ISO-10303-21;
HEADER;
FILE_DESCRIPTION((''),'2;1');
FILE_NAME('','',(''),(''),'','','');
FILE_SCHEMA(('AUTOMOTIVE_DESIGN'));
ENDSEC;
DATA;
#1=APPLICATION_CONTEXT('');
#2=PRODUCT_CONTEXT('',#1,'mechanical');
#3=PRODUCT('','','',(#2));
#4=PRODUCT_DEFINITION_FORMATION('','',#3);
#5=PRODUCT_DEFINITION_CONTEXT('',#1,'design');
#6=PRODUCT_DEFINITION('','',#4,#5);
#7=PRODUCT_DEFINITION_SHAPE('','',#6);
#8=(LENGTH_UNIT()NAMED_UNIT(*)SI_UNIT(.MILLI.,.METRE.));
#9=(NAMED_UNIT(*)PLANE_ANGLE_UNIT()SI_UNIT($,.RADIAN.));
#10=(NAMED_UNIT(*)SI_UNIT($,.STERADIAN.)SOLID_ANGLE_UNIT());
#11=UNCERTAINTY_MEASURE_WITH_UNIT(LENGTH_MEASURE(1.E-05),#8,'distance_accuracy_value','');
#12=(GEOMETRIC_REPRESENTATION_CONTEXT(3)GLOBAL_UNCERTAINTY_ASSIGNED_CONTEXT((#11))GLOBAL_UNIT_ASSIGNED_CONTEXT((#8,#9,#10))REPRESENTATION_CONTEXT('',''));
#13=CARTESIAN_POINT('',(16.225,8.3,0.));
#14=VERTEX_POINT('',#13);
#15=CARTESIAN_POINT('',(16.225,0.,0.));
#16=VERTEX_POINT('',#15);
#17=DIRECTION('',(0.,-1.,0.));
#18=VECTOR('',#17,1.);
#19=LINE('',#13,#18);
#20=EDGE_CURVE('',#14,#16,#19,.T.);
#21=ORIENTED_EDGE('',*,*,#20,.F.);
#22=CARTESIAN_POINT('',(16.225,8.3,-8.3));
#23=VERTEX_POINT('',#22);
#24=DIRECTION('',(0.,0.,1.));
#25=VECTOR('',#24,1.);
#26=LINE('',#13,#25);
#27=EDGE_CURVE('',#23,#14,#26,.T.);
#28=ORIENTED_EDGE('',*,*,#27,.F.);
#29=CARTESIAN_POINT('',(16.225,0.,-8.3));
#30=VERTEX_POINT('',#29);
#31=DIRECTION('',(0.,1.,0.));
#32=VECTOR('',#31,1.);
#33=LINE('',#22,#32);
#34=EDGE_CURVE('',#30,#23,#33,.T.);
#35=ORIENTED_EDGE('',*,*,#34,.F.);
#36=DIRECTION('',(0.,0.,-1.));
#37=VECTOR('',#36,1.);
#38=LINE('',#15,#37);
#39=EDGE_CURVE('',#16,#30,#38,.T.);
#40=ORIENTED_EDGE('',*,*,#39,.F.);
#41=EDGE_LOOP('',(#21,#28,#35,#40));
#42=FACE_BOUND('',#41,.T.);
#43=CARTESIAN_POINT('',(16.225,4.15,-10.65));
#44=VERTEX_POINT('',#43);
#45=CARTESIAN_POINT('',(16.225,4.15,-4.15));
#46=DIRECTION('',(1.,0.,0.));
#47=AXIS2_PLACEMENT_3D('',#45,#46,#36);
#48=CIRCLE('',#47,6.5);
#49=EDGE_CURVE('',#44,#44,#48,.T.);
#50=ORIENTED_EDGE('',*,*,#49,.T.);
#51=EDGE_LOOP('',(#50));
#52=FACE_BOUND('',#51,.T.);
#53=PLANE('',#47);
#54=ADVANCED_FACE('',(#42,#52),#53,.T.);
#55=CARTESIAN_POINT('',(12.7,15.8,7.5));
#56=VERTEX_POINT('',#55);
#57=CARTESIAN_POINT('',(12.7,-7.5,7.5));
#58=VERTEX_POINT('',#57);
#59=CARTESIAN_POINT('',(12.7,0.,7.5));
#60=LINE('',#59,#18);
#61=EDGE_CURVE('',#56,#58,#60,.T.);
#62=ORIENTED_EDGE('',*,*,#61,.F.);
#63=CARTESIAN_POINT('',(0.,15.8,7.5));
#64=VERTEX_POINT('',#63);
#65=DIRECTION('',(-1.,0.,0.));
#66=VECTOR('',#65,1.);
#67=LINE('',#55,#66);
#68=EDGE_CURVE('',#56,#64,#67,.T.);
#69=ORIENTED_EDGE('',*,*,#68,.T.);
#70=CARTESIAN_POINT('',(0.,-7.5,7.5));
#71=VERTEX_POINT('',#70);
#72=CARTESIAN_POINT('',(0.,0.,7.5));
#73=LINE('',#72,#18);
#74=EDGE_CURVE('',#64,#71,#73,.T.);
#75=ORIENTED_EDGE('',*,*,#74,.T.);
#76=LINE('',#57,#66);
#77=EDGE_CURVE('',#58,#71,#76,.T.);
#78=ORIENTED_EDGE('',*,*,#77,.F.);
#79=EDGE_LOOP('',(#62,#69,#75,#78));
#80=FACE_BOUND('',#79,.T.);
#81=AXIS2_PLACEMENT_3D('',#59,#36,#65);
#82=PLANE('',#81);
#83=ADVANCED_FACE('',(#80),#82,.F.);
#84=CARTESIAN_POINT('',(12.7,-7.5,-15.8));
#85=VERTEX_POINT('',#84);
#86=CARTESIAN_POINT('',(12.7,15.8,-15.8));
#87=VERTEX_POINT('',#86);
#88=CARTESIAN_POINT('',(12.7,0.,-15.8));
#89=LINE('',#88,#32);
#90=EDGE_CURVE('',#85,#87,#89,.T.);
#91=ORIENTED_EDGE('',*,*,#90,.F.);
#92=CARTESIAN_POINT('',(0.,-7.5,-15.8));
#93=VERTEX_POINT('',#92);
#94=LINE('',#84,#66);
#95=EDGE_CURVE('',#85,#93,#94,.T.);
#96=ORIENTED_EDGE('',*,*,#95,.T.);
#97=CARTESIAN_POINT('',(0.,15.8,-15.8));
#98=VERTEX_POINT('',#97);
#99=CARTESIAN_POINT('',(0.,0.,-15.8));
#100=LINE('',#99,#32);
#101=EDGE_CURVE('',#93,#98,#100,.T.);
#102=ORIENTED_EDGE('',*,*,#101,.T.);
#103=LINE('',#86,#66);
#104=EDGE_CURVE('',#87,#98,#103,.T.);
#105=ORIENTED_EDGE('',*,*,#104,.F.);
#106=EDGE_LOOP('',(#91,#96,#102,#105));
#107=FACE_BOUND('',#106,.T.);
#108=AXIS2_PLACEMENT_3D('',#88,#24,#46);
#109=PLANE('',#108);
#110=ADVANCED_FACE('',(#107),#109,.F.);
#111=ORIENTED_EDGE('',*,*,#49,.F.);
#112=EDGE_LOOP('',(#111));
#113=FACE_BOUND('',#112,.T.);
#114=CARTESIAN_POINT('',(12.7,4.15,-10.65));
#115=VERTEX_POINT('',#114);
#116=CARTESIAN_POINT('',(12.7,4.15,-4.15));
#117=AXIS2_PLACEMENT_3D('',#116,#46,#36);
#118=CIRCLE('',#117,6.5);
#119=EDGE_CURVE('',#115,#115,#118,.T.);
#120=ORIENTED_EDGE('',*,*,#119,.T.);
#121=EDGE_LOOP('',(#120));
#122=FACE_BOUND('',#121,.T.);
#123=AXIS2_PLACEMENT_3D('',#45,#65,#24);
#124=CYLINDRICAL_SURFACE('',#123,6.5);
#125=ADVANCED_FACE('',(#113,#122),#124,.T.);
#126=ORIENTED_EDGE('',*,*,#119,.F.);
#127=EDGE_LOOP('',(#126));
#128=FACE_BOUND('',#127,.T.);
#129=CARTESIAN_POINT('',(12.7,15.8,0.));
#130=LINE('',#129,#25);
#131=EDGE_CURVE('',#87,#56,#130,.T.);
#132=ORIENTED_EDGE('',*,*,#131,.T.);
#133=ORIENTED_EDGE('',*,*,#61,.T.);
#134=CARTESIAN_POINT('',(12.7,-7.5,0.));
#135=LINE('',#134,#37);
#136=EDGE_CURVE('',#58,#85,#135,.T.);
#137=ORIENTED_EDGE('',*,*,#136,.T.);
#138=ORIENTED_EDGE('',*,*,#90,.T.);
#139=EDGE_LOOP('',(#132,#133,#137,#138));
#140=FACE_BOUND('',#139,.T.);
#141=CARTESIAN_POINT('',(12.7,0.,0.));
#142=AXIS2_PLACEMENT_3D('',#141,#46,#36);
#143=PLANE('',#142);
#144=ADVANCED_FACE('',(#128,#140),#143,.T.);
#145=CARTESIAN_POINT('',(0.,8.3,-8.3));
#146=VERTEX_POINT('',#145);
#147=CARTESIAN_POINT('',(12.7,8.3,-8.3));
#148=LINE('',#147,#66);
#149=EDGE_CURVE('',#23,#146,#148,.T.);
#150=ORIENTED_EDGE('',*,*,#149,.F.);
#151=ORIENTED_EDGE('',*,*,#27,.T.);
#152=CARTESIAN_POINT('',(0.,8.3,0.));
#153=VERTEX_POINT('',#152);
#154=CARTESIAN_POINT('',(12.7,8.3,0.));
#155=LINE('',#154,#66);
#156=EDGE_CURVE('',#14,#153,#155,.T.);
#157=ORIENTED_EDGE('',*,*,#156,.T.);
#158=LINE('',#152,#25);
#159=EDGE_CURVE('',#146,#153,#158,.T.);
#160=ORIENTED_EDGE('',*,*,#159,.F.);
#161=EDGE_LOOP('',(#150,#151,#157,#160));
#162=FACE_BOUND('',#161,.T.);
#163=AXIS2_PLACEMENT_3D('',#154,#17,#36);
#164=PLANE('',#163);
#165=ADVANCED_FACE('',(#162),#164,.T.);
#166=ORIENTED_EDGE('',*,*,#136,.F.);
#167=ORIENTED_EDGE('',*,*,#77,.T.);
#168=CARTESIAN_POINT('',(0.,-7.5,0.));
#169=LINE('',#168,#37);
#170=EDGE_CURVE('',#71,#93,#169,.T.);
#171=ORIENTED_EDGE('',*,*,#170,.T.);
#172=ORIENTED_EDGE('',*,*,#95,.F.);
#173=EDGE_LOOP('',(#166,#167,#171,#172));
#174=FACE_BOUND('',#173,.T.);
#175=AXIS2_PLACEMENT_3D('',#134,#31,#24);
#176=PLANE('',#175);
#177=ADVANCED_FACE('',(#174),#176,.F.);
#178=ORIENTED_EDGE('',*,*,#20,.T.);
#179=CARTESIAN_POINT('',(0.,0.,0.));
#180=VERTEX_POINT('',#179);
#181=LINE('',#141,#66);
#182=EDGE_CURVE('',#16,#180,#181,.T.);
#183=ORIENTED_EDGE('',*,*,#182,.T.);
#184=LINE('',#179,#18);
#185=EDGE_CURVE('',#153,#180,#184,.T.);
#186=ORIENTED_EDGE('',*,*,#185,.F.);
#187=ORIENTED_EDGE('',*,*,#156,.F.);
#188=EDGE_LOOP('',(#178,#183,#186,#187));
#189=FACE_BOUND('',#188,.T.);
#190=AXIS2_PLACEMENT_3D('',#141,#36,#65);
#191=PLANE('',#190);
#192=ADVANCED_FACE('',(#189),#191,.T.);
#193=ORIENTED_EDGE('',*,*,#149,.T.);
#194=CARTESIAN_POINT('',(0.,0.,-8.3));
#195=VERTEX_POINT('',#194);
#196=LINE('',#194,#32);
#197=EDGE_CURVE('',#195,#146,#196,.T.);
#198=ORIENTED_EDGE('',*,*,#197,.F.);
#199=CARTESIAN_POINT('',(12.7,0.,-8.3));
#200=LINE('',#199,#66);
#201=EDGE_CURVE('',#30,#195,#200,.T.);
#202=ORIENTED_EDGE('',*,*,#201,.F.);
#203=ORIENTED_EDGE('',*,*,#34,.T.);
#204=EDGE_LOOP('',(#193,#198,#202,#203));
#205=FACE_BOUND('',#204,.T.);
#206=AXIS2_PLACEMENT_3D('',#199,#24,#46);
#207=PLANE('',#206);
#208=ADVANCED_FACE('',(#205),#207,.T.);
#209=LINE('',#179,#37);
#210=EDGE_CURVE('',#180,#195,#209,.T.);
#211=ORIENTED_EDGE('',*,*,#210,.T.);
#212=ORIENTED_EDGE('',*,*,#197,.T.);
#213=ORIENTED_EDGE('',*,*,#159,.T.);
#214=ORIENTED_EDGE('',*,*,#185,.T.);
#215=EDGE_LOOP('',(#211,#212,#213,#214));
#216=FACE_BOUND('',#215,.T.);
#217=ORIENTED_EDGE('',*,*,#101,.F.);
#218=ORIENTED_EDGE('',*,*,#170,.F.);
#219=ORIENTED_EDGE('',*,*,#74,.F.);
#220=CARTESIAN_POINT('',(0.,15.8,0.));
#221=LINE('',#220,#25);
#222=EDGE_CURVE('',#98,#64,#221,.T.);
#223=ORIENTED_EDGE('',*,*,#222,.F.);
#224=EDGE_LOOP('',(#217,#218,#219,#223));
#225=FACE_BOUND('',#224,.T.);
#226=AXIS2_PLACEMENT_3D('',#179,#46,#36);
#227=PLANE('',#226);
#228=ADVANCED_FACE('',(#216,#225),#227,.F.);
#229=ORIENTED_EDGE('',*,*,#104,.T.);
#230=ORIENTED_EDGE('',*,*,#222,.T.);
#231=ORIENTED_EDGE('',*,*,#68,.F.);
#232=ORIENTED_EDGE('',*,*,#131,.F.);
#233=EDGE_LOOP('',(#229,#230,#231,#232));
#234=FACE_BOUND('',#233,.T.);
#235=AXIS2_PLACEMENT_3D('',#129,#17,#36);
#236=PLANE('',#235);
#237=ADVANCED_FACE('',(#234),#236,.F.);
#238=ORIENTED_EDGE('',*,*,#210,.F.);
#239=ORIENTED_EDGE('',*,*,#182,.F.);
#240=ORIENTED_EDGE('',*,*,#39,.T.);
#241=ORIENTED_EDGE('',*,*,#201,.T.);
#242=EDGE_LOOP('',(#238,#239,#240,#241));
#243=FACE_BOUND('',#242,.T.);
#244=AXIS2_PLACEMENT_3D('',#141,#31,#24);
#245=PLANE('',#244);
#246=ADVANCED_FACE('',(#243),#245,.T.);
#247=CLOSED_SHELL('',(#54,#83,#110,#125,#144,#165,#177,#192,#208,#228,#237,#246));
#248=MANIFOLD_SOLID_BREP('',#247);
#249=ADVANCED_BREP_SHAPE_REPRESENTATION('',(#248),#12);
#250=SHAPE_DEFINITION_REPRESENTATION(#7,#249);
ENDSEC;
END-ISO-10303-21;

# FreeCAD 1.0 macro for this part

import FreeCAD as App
import Part
import Sketcher
Q = App.Units.Quantity


def add_polygon(sketch, points):
    """Adds a closed chain of lines whose ends are joined by coincident constraints."""
    first, n = sketch.GeometryCount, len(points)
    for a, b in zip(points, points[1:] + points[:1]):
        sketch.addGeometry(Part.LineSegment(App.Vector(*a, 0), App.Vector(*b, 0)), False)
    for i in range(n):
        sketch.addConstraint(Sketcher.Constraint("Coincident", first + i, 2, first + (i + 1) % n, 1))

doc = App.newDocument("Part")
params = doc.addObject("Spreadsheet::Sheet", "Params")
for row, (alias, value) in enumerate([
    ("sketch1_width", "23.3 mm"),
    ("sketch1_width2", "8.3 mm"),
    ("pad1_length", "12.7 mm"),
    ("sketch2_diameter", "13 mm"),
    ("sketch2_width", "8.3 mm"),
    ("pad2_length", "3.525 mm"),
], start=1):
    params.set(f"A{row}", alias)
    params.set(f"B{row}", "=" + value)
    params.setAlias(f"B{row}", alias)

body = doc.addObject("PartDesign::Body", "Body")

# Sketch on YZ plane
sketch1 = body.newObject("Sketcher::SketchObject", "Sketch")
sketch1.AttachmentSupport = (doc.getObject("YZ_Plane"), [""])
sketch1.MapMode = "FlatFace"
add_polygon(sketch1, [(15.8, 7.5), (-7.5, 7.5), (-7.5, -15.8), (15.8, -15.8)])  # lines 0-3
add_polygon(sketch1, [(0, -8.3), (0, 0), (8.3, 0), (8.3, -8.3)])  # lines 4-7
sketch1.addConstraint([
    Sketcher.Constraint("Horizontal", 0),
    Sketcher.Constraint("Vertical", 1),
    Sketcher.Constraint("Horizontal", 2),
    Sketcher.Constraint("Vertical", 3),
    Sketcher.Constraint("Vertical", 4),
    Sketcher.Constraint("Horizontal", 5),
    Sketcher.Constraint("Vertical", 6),
    Sketcher.Constraint("Horizontal", 7),
    Sketcher.Constraint("Coincident", 4, 2, -1, 1),
    Sketcher.Constraint("Equal", 2, 1),
    Sketcher.Constraint("Equal", 7, 4),
    Sketcher.Constraint("DistanceX", 0, 2, 0, 1, Q("23.3 mm")),
    Sketcher.Constraint("DistanceX", 5, 1, 5, 2, Q("8.3 mm")),
    Sketcher.Constraint("DistanceX", 0, 2, -1, 1, Q("7.5 mm")),
    Sketcher.Constraint("DistanceY", -1, 1, 0, 2, Q("7.5 mm")),
])
sketch1.setExpression("Constraints[19]", "Params.sketch1_width")
sketch1.setExpression("Constraints[20]", "Params.sketch1_width2")
pad1 = body.newObject("PartDesign::Pad", "Pad")
pad1.Profile = sketch1
pad1.setExpression("Length", "Params.pad1_length")

# Sketch on YZ plane
sketch2 = body.newObject("Sketcher::SketchObject", "Sketch001")
sketch2.AttachmentSupport = (doc.getObject("YZ_Plane"), [""])
sketch2.MapMode = "FlatFace"
sketch2.AttachmentOffset = App.Placement(App.Vector(0, 0, 12.7), App.Rotation())
sketch2.addGeometry(Part.Circle(App.Vector(4.15, -4.15, 0), App.Vector(0, 0, 1), 6.5), False)  # 0
add_polygon(sketch2, [(0, -8.3), (0, 0), (8.3, 0), (8.3, -8.3)])  # lines 1-4
sketch2.addConstraint([
    Sketcher.Constraint("Vertical", 1),
    Sketcher.Constraint("Horizontal", 2),
    Sketcher.Constraint("Vertical", 3),
    Sketcher.Constraint("Horizontal", 4),
    Sketcher.Constraint("Coincident", 1, 2, -1, 1),
    Sketcher.Constraint("Equal", 4, 1),
    Sketcher.Constraint("Diameter", 0, Q("13 mm")),
    Sketcher.Constraint("DistanceX", 2, 1, 2, 2, Q("8.3 mm")),
    Sketcher.Constraint("DistanceX", -1, 1, 0, 3, Q("4.15 mm")),
    Sketcher.Constraint("DistanceY", 0, 3, -1, 1, Q("4.15 mm")),
])
sketch2.setExpression("Constraints[10]", "Params.sketch2_diameter")
sketch2.setExpression("Constraints[11]", "Params.sketch2_width")
pad2 = body.newObject("PartDesign::Pad", "Pad001")
pad2.Profile = sketch2
pad2.setExpression("Length", "Params.pad2_length")

doc.recompute()
